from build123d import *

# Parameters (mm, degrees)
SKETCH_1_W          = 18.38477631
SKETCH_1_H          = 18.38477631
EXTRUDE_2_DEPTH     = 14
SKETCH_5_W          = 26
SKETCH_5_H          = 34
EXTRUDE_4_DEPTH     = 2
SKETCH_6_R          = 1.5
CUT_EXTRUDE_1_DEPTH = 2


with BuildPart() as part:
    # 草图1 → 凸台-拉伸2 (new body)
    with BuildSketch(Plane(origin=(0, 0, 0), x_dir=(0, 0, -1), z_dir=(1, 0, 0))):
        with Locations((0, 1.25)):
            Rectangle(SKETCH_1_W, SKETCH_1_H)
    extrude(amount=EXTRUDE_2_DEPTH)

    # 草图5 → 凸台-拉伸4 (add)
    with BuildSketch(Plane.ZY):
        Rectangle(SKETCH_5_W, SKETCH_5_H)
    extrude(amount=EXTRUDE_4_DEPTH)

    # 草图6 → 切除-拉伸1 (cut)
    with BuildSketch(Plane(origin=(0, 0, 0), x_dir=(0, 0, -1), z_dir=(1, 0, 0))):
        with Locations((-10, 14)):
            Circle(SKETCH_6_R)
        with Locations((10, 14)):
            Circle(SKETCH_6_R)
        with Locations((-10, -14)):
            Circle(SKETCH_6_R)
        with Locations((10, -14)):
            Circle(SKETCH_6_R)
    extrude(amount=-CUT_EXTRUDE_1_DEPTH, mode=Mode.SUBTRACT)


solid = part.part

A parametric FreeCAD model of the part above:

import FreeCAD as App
import Part
import Sketcher

V = App.Vector

doc = App.newDocument("Part")
body = doc.addObject("PartDesign::Body", "Body")

# Sketch on YZ plane
sketch1 = body.newObject("Sketcher::SketchObject", "Sketch")
sketch1.AttachmentSupport = (doc.getObject("YZ_Plane"), [""])
sketch1.MapMode = "FlatFace"
sketch1.addGeometry([
    Part.LineSegment(V(10, 9, 0), V(-8, 9, 0)),
    Part.LineSegment(V(-8, 9, 0), V(-8, -9, 0)),
    Part.LineSegment(V(-8, -9, 0), V(10, -9, 0)),
    Part.LineSegment(V(10, -9, 0), V(10, 9, 0)),
], False)
sketch1.addConstraint([
    Sketcher.Constraint("Coincident", 0, 2, 1, 1),
    Sketcher.Constraint("Coincident", 1, 2, 2, 1),
    Sketcher.Constraint("Coincident", 2, 2, 3, 1),
    Sketcher.Constraint("Coincident", 3, 2, 0, 1),
    Sketcher.Constraint("Horizontal", 0),
    Sketcher.Constraint("Vertical", 1),
    Sketcher.Constraint("Horizontal", 2),
    Sketcher.Constraint("Vertical", 3),
    Sketcher.Constraint("Equal", 2, 1),
    Sketcher.Constraint("DistanceX", 0, 2, 0, 1, 18.384776),
    Sketcher.Constraint("DistanceX", 0, 2, -1, 1, 7.942388),
    Sketcher.Constraint("DistanceY", -1, 1, 0, 2, 9.192388),
])
pad1 = body.newObject("PartDesign::Pad", "Pad")
pad1.Profile = sketch1
pad1.Length = 14

# Sketch on YZ plane
sketch2 = body.newObject("Sketcher::SketchObject", "Sketch001")
sketch2.AttachmentSupport = (doc.getObject("YZ_Plane"), [""])
sketch2.MapMode = "FlatFace"
sketch2.addGeometry([
    Part.LineSegment(V(17, -13, 0), V(-17, -13, 0)),
    Part.LineSegment(V(-17, -13, 0), V(-17, 13, 0)),
    Part.LineSegment(V(-17, 13, 0), V(17, 13, 0)),
    Part.LineSegment(V(17, 13, 0), V(17, -13, 0)),
], False)
sketch2.addConstraint([
    Sketcher.Constraint("Coincident", 0, 2, 1, 1),
    Sketcher.Constraint("Coincident", 1, 2, 2, 1),
    Sketcher.Constraint("Coincident", 2, 2, 3, 1),
    Sketcher.Constraint("Coincident", 3, 2, 0, 1),
    Sketcher.Constraint("Horizontal", 0),
    Sketcher.Constraint("Vertical", 1),
    Sketcher.Constraint("Horizontal", 2),
    Sketcher.Constraint("Vertical", 3),
    Sketcher.Constraint("Symmetric", 0, 2, 2, 2, -1, 1),
    Sketcher.Constraint("DistanceX", 0, 2, 0, 1, 34.0),
    Sketcher.Constraint("DistanceY", 1, 1, 1, 2, 26.0),
])
pad2 = body.newObject("PartDesign::Pad", "Pad001")
pad2.Profile = sketch2
pad2.Length = 2
pad2.Reversed = True

# Sketch on YZ plane
sketch3 = body.newObject("Sketcher::SketchObject", "Sketch002")
sketch3.AttachmentSupport = (doc.getObject("YZ_Plane"), [""])
sketch3.MapMode = "FlatFace"
sketch3.addGeometry([
    Part.Circle(V(14, 10, 0), V(0, 0, 1), 1.5),
    Part.Circle(V(14, -10, 0), V(0, 0, 1), 1.5),
    Part.Circle(V(-14, 10, 0), V(0, 0, 1), 1.5),
    Part.Circle(V(-14, -10, 0), V(0, 0, 1), 1.5),
], False)
sketch3.addConstraint([
    Sketcher.Constraint("Equal", 0, 1),
    Sketcher.Constraint("Equal", 1, 2),
    Sketcher.Constraint("Equal", 2, 3),
    Sketcher.Constraint("Symmetric", 1, 3, 2, 3, -1, 1),
    Sketcher.Constraint("Symmetric", 0, 3, 3, 3, -1, 1),
    Sketcher.Constraint("Symmetric", 0, 3, 2, 3, -2),
    Sketcher.Constraint("Diameter", 0, 3.0),
    Sketcher.Constraint("DistanceX", -1, 1, 0, 3, 14.0),
    Sketcher.Constraint("DistanceY", -1, 1, 0, 3, 10.0),
])
pocket1 = body.newObject("PartDesign::Pocket", "Pocket")
pocket1.Profile = sketch3
pocket1.Length = 2

doc.recompute()
